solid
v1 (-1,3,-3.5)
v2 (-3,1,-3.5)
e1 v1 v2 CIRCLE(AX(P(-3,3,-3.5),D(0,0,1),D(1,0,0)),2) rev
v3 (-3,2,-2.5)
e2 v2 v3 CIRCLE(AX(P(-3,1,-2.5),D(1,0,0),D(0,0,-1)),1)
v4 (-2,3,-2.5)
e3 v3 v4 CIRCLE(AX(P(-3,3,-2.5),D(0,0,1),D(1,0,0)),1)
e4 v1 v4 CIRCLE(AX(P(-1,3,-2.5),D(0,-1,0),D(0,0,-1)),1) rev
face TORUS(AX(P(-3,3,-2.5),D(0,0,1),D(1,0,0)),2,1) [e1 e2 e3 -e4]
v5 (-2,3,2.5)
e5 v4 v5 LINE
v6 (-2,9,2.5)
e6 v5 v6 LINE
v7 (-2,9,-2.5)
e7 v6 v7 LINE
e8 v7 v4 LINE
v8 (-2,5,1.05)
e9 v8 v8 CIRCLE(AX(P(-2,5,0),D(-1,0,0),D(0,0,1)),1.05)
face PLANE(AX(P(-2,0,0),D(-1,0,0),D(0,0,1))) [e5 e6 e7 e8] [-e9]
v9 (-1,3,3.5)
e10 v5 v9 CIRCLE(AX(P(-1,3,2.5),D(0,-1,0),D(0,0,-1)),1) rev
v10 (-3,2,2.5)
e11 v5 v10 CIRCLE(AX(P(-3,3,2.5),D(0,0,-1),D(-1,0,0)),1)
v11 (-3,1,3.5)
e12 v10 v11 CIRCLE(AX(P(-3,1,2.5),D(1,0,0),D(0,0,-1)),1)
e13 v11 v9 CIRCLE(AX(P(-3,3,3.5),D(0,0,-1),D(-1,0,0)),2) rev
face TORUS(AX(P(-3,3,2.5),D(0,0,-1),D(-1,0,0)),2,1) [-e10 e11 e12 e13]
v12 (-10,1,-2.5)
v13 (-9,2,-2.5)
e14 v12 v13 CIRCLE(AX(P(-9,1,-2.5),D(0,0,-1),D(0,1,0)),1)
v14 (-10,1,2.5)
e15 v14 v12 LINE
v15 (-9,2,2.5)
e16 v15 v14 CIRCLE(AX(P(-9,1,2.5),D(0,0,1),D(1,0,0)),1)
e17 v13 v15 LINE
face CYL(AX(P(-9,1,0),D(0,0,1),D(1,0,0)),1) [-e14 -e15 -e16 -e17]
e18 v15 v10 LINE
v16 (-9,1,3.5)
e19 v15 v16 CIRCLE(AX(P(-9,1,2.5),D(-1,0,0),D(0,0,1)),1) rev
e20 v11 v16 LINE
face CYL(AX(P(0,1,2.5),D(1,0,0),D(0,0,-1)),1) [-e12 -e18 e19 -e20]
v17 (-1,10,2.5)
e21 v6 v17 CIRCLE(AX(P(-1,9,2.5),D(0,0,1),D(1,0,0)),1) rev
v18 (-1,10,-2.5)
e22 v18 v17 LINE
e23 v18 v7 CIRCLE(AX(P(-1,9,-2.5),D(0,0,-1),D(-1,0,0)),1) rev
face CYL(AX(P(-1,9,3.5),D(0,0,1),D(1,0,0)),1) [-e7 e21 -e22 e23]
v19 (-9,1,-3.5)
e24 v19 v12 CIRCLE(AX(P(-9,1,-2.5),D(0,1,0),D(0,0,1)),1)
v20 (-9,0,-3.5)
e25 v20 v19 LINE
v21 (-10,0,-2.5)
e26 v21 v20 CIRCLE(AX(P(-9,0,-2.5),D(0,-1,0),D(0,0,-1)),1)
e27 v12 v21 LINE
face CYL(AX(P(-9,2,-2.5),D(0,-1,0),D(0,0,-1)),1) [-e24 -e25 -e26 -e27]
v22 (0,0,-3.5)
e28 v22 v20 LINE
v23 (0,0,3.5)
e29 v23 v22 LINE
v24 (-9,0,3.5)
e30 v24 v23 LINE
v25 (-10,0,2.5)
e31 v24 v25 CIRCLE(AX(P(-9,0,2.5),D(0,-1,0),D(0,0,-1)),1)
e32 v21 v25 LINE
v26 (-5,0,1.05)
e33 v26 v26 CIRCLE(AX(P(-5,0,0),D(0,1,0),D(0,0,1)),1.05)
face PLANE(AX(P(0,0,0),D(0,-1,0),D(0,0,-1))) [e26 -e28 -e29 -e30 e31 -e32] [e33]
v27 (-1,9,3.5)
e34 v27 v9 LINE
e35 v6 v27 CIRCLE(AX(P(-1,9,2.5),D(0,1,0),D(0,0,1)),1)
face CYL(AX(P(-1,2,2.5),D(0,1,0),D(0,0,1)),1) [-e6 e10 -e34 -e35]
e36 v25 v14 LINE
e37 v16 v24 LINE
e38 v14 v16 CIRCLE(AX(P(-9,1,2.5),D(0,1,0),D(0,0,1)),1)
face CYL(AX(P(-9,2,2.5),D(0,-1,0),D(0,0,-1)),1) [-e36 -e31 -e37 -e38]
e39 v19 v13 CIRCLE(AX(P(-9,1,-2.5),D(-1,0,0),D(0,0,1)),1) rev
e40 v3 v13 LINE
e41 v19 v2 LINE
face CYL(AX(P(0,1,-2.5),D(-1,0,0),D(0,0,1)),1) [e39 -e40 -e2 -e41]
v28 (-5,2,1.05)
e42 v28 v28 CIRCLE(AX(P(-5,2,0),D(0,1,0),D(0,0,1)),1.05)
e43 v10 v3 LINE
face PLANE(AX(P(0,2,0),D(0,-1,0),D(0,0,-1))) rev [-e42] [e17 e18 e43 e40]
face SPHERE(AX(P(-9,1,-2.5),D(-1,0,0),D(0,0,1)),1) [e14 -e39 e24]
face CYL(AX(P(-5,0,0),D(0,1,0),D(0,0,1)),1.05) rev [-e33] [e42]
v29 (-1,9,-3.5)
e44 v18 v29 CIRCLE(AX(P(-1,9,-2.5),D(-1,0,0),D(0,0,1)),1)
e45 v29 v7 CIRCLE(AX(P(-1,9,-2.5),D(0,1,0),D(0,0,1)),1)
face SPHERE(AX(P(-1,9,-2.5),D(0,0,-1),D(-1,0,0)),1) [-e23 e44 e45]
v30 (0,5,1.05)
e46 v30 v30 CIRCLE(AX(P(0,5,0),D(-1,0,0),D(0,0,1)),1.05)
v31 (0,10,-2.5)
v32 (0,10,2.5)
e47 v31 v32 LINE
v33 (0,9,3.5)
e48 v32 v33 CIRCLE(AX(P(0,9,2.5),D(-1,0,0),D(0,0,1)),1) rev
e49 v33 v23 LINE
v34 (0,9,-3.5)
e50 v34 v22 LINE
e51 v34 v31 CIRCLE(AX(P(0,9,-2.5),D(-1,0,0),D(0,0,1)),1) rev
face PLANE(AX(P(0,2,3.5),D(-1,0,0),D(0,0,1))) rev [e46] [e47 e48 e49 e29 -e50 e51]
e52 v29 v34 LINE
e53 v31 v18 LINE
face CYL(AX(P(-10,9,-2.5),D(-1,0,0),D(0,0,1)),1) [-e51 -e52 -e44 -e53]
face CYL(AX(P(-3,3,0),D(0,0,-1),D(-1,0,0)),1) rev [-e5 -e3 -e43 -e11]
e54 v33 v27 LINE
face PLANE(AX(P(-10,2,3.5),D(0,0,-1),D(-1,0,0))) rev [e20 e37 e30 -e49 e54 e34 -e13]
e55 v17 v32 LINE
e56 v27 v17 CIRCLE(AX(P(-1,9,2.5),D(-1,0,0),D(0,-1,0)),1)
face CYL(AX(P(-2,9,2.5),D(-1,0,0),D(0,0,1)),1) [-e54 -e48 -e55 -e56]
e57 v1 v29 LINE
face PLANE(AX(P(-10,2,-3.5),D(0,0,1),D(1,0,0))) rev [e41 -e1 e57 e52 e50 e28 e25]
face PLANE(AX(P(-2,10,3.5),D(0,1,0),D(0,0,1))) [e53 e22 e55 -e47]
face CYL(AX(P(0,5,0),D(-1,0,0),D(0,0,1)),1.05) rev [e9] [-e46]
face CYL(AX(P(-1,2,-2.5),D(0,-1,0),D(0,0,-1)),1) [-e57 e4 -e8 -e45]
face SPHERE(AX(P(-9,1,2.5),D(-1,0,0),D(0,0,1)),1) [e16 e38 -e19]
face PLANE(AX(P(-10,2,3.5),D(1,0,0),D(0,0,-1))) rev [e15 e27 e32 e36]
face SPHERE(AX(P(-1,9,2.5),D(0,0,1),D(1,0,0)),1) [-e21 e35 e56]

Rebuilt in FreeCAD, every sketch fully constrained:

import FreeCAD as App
import Part
import Sketcher


def edges_at(feature, points):
    """Names of the edges that pass closest to the given points."""
    edges = feature.Shape.Edges
    near = lambda p: min(range(len(edges)), key=lambda i: edges[i].distToShape(Part.Vertex(*p))[0])
    return sorted({f"Edge{near(p) + 1}" for p in points})

doc = App.newDocument("Part")
body = doc.addObject("PartDesign::Body", "Body")

# Sketch on XZ plane
sketch1 = body.newObject("Sketcher::SketchObject", "Sketch")
sketch1.AttachmentSupport = (doc.getObject("XZ_Plane"), [""])
sketch1.MapMode = "FlatFace"
sketch1.addGeometry([
    Part.LineSegment(App.Vector(-10, -4, 0), App.Vector(-10, 4, 0)),
    Part.LineSegment(App.Vector(-10, 4, 0), App.Vector(0, 4, 0)),
    Part.LineSegment(App.Vector(0, 4, 0), App.Vector(0, -4, 0)),
    Part.LineSegment(App.Vector(0, -4, 0), App.Vector(-10, -4, 0)),
], False)
sketch1.addConstraint([
    Sketcher.Constraint("Coincident", 0, 2, 1, 1),
    Sketcher.Constraint("Coincident", 1, 2, 2, 1),
    Sketcher.Constraint("Coincident", 2, 2, 3, 1),
    Sketcher.Constraint("Coincident", 3, 2, 0, 1),
    Sketcher.Constraint("Vertical", 0),
    Sketcher.Constraint("Horizontal", 1),
    Sketcher.Constraint("Vertical", 2),
    Sketcher.Constraint("Horizontal", 3),
    Sketcher.Constraint("Symmetric", 1, 2, 2, 2, -1, 1),
    Sketcher.Constraint("DistanceX", 1, 1, 1, 2, 10.0),
    Sketcher.Constraint("DistanceY", 0, 1, 0, 2, 7.0),
])
pad1 = body.newObject("PartDesign::Pad", "Pad")
pad1.Profile = sketch1
pad1.Length = 2
pad1.Reversed = True

# Sketch on YZ plane
sketch2 = body.newObject("Sketcher::SketchObject", "Sketch001")
sketch2.AttachmentSupport = (doc.getObject("YZ_Plane"), [""])
sketch2.MapMode = "FlatFace"
sketch2.addGeometry([
    Part.LineSegment(App.Vector(10, 4, 0), App.Vector(0, 4, 0)),
    Part.LineSegment(App.Vector(0, 4, 0), App.Vector(0, -4, 0)),
    Part.LineSegment(App.Vector(0, -4, 0), App.Vector(10, -4, 0)),
    Part.LineSegment(App.Vector(10, -4, 0), App.Vector(10, 4, 0)),
], False)
sketch2.addConstraint([
    Sketcher.Constraint("Coincident", 0, 2, 1, 1),
    Sketcher.Constraint("Coincident", 1, 2, 2, 1),
    Sketcher.Constraint("Coincident", 2, 2, 3, 1),
    Sketcher.Constraint("Coincident", 3, 2, 0, 1),
    Sketcher.Constraint("Horizontal", 0),
    Sketcher.Constraint("Vertical", 1),
    Sketcher.Constraint("Horizontal", 2),
    Sketcher.Constraint("Vertical", 3),
    Sketcher.Constraint("Symmetric", 0, 2, 1, 2, -1, 1),
    Sketcher.Constraint("DistanceX", 0, 2, 0, 1, 10.0),
    Sketcher.Constraint("DistanceY", 1, 2, 1, 1, 7.0),
])
pad2 = body.newObject("PartDesign::Pad", "Pad001")
pad2.Profile = sketch2
pad2.Length = 2
pad2.Reversed = True

# Sketch on XZ plane
sketch3 = body.newObject("Sketcher::SketchObject", "Sketch002")
sketch3.AttachmentSupport = (doc.getObject("XZ_Plane"), [""])
sketch3.MapMode = "FlatFace"
sketch3.AttachmentOffset = App.Placement(App.Vector(0, 0, -2), App.Rotation())
sketch3.addGeometry(Part.Circle(App.Vector(-5, 0, 0), App.Vector(0, 0, 1), 1.1), False)
sketch3.addConstraint([
    Sketcher.Constraint("PointOnObject", 0, 3, -1),
    Sketcher.Constraint("Diameter", 0, 2.1),
    Sketcher.Constraint("DistanceX", 0, 3, -1, 1, 5.0),
])
pocket1 = body.newObject("PartDesign::Pocket", "Pocket")
pocket1.Profile = sketch3
pocket1.Type = "ThroughAll"
pocket1.Reversed = True

# Sketch on YZ plane
sketch4 = body.newObject("Sketcher::SketchObject", "Sketch003")
sketch4.AttachmentSupport = (doc.getObject("YZ_Plane"), [""])
sketch4.MapMode = "FlatFace"
sketch4.AttachmentOffset = App.Placement(App.Vector(0, 0, -2), App.Rotation())
sketch4.addGeometry(Part.Circle(App.Vector(5, 0, 0), App.Vector(0, 0, 1), 1.1), False)
sketch4.addConstraint([
    Sketcher.Constraint("PointOnObject", 0, 3, -1),
    Sketcher.Constraint("Diameter", 0, 2.1),
    Sketcher.Constraint("DistanceX", -1, 1, 0, 3, 5.0),
])
pocket2 = body.newObject("PartDesign::Pocket", "Pocket001")
pocket2.Profile = sketch4
pocket2.Type = "ThroughAll"
pocket2.Reversed = True
doc.recompute()

fillet = body.newObject("PartDesign::Fillet", "Fillet")
fillet.Base = (pocket2, edges_at(pocket2, [
    (-10, 2, 0),
    (-6, 2, -3.5),
    (-2, 6, 3.5),
    (-6, 2, 3.5),
    (-2, 6, -3.5),
    (-1, 10, -3.5),
    (-2, 10, 0),
    (-1, 10, 3.5),
    (-2, 2, 0),
    (-10, 1, 3.5),
    (-10, 1, -3.5),
]))
fillet.Radius = 1

doc.recompute()
